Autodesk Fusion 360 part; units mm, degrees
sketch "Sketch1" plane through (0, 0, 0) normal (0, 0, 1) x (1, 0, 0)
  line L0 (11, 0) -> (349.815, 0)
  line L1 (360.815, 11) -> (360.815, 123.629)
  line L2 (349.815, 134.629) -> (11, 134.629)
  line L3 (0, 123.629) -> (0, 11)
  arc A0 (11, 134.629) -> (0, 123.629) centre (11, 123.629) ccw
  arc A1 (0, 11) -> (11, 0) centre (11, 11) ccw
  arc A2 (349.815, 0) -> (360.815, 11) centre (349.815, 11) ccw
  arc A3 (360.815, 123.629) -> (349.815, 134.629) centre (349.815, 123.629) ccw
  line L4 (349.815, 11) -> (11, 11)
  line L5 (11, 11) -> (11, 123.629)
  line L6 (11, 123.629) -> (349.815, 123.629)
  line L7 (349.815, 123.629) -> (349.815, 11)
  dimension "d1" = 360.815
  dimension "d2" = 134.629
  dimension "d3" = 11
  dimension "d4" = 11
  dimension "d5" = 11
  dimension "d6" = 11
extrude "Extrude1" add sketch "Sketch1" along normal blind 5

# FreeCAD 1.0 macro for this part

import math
import FreeCAD as App
import Part
import Sketcher
Q = App.Units.Quantity


def add_polygon(sketch, points):
    """Adds a closed chain of lines whose ends are joined by coincident constraints."""
    first, n = sketch.GeometryCount, len(points)
    for a, b in zip(points, points[1:] + points[:1]):
        sketch.addGeometry(Part.LineSegment(App.Vector(*a, 0), App.Vector(*b, 0)), False)
    for i in range(n):
        sketch.addConstraint(Sketcher.Constraint("Coincident", first + i, 2, first + (i + 1) % n, 1))

doc = App.newDocument("Part")
body = doc.addObject("PartDesign::Body", "Body")

sketch1 = body.newObject("Sketcher::SketchObject", "Sketch")
sketch1.AttachmentSupport = (doc.getObject("XY_Plane"), [""])
sketch1.MapMode = "FlatFace"
sketch1.addGeometry(Part.ArcOfCircle(Part.Circle(App.Vector(11, 11, 0), App.Vector(0, 0, 1), 11), math.radians(180), math.radians(270)), False)
sketch1.addGeometry(Part.LineSegment(App.Vector(11, 0, 0), App.Vector(350, 0, 0)), False)
sketch1.addGeometry(Part.ArcOfCircle(Part.Circle(App.Vector(350, 11, 0), App.Vector(0, 0, 1), 11), math.radians(-90), math.radians(0)), False)
sketch1.addGeometry(Part.LineSegment(App.Vector(361, 11, 0), App.Vector(361, 124, 0)), False)
sketch1.addGeometry(Part.ArcOfCircle(Part.Circle(App.Vector(350, 124, 0), App.Vector(0, 0, 1), 11), math.radians(0), math.radians(90)), False)
sketch1.addGeometry(Part.LineSegment(App.Vector(350, 135, 0), App.Vector(11, 135, 0)), False)
sketch1.addGeometry(Part.ArcOfCircle(Part.Circle(App.Vector(11, 124, 0), App.Vector(0, 0, 1), 11), math.radians(90), math.radians(180)), False)
sketch1.addGeometry(Part.LineSegment(App.Vector(0, 124, 0), App.Vector(0, 11, 0)), False)
add_polygon(sketch1, [(350, 124), (350, 11), (11, 11), (11, 124)])
sketch1.addConstraint([
    Sketcher.Constraint("Tangent", 0, 2, 1, 1),
    Sketcher.Constraint("Tangent", 1, 2, 2, 1),
    Sketcher.Constraint("Tangent", 2, 2, 3, 1),
    Sketcher.Constraint("Tangent", 3, 2, 4, 1),
    Sketcher.Constraint("Tangent", 4, 2, 5, 1),
    Sketcher.Constraint("Tangent", 5, 2, 6, 1),
    Sketcher.Constraint("Tangent", 6, 2, 7, 1),
    Sketcher.Constraint("Tangent", 7, 2, 0, 1),
    Sketcher.Constraint("Horizontal", 1),
    Sketcher.Constraint("Vertical", 3),
    Sketcher.Constraint("Horizontal", 5),
    Sketcher.Constraint("Vertical", 7),
    Sketcher.Constraint("Vertical", 8),
    Sketcher.Constraint("Horizontal", 9),
    Sketcher.Constraint("Vertical", 10),
    Sketcher.Constraint("Horizontal", 11),
    Sketcher.Constraint("Coincident", 8, 2, 2, 3),
    Sketcher.Constraint("Coincident", 9, 2, 0, 3),
    Sketcher.Constraint("Coincident", 10, 2, 6, 3),
    Sketcher.Constraint("Equal", 2, 4),
    Sketcher.Constraint("PointOnObject", 0, 2, -1),
    Sketcher.Constraint("PointOnObject", 6, 2, -2),
    Sketcher.Constraint("Radius", 0, Q("11 mm")),
    Sketcher.Constraint("DistanceX", -1, 1, 2, 2, Q("360.815 mm")),
    Sketcher.Constraint("DistanceY", -1, 1, 4, 2, Q("134.629 mm")),
])
pad1 = body.newObject("PartDesign::Pad", "Pad")
pad1.Profile = sketch1
pad1.Length = 5

doc.recompute()
